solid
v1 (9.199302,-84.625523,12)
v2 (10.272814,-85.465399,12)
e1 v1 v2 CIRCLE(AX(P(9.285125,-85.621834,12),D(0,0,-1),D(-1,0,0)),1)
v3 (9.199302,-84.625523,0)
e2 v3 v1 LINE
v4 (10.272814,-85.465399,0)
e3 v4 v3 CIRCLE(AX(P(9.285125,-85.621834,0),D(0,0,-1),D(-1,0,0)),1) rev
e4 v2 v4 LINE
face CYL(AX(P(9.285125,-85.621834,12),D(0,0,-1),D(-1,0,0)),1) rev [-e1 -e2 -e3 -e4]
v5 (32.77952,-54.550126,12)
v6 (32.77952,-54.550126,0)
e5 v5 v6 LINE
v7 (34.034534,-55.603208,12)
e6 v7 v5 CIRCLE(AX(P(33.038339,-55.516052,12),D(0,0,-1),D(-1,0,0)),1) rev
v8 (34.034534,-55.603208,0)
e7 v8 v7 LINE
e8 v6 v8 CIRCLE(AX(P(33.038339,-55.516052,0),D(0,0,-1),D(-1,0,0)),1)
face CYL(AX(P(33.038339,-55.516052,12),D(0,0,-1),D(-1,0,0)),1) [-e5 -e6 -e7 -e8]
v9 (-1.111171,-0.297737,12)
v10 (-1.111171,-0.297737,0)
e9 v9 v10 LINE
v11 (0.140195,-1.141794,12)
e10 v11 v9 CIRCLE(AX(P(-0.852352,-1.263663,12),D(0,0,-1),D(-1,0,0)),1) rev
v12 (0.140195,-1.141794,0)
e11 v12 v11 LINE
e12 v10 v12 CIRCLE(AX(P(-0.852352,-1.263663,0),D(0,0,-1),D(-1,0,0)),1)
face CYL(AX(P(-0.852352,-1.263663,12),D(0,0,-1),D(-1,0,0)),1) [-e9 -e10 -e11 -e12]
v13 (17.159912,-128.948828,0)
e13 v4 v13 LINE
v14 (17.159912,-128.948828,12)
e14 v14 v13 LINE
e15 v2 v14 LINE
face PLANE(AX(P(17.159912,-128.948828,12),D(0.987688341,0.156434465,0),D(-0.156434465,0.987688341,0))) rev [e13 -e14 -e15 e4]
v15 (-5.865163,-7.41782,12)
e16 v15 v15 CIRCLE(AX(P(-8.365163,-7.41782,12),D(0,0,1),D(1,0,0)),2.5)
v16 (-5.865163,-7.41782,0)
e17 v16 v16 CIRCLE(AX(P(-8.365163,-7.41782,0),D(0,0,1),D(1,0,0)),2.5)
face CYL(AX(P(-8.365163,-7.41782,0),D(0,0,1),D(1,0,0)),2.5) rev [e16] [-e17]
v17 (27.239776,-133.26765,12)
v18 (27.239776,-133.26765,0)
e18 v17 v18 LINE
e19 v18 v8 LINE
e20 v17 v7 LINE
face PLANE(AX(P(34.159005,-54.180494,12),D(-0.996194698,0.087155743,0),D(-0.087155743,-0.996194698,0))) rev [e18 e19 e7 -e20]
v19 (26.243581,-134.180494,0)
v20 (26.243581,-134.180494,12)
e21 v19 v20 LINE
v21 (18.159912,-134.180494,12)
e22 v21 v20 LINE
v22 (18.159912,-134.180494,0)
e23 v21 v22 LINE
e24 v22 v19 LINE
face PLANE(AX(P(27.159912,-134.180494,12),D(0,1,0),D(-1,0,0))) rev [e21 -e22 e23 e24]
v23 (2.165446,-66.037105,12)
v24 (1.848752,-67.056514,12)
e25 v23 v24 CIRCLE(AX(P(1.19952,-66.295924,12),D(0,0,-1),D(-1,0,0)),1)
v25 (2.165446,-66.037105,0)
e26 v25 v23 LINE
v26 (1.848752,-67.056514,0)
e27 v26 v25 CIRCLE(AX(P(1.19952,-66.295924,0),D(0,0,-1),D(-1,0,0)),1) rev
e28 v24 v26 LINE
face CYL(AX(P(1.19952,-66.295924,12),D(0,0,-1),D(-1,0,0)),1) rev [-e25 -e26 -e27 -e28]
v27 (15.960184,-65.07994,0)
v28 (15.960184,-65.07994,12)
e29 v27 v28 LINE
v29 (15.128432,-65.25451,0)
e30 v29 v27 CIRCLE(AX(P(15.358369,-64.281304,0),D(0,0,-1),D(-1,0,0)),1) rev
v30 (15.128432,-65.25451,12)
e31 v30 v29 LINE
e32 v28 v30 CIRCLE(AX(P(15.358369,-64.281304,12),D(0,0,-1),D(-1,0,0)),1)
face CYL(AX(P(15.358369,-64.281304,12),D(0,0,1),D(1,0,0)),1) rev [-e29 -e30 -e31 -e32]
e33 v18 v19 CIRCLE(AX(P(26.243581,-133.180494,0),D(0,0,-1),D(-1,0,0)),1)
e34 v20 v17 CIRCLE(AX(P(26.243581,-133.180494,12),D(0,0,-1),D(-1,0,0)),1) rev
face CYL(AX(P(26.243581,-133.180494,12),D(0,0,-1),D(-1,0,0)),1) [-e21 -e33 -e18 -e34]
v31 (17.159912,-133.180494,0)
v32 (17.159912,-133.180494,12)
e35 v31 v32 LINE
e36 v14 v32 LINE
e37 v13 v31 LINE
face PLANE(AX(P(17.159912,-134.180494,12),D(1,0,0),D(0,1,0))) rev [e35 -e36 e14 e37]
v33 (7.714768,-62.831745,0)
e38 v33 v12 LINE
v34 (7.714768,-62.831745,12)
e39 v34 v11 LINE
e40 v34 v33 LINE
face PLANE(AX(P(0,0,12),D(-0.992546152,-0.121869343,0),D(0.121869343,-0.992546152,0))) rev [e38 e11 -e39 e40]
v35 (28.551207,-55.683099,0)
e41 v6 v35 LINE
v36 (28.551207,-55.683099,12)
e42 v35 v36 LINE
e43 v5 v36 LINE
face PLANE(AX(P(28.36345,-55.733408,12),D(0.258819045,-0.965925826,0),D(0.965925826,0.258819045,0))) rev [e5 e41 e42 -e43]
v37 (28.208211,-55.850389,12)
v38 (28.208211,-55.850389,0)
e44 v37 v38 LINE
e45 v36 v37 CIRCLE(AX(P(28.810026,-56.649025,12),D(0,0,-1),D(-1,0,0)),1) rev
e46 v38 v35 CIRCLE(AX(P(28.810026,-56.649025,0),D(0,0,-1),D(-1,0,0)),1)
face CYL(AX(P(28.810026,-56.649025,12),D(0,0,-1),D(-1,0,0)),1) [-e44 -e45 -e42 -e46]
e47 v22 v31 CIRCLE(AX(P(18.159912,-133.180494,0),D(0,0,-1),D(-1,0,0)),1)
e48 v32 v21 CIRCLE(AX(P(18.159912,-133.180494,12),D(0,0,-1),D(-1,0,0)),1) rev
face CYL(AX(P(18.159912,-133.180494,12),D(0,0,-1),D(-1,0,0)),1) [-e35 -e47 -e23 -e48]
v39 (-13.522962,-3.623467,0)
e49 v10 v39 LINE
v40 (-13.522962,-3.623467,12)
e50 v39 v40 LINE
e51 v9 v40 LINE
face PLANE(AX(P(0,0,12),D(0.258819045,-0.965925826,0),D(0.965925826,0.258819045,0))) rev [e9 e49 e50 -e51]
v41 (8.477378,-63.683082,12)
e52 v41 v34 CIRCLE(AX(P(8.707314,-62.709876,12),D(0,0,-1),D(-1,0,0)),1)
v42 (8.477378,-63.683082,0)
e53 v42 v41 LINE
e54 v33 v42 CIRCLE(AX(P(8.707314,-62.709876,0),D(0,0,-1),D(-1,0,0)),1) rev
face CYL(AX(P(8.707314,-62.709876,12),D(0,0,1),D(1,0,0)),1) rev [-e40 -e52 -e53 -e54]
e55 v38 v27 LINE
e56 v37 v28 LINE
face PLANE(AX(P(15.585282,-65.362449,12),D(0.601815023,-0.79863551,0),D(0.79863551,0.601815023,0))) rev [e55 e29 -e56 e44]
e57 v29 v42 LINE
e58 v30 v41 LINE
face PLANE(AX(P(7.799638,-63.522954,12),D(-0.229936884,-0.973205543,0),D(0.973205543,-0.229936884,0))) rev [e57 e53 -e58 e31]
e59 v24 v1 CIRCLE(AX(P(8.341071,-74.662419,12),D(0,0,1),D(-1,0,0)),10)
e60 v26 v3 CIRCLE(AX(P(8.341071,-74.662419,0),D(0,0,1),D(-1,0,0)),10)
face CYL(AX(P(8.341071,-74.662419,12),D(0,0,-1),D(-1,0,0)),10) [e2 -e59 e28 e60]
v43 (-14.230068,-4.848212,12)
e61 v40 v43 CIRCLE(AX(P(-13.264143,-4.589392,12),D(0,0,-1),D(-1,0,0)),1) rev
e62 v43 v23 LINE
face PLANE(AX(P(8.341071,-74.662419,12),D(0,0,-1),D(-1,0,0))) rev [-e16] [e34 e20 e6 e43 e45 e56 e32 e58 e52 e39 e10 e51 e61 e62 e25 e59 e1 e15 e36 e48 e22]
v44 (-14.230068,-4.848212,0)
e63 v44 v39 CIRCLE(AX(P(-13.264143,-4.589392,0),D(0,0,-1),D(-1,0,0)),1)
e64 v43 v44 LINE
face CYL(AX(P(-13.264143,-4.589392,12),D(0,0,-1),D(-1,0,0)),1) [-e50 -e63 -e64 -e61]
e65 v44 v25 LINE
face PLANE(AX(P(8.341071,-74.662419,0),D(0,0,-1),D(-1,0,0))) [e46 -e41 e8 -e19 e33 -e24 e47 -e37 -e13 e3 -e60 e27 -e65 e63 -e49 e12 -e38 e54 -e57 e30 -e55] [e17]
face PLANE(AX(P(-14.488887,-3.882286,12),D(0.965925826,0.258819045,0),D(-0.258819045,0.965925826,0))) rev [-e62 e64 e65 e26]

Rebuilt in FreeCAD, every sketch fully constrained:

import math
import FreeCAD as App
import Part
import Sketcher

V = App.Vector
Q = App.Units.Quantity


def edges_at(feature, points):
    """Names of the edges that pass closest to the given points."""
    edges = feature.Shape.Edges
    near = lambda p: min(range(len(edges)), key=lambda i: edges[i].distToShape(Part.Vertex(*p))[0])
    return sorted({f"Edge{near(p) + 1}" for p in points})

doc = App.newDocument("Part")
params = doc.addObject("Spreadsheet::Sheet", "Params")
for row, (alias, value) in enumerate([
    ("sketch1_radius", "10 mm"),
    ("sketch1_width", "10 mm"),
    ("sketch1_length", "15 mm"),
    ("sketch1_length2", "65 mm"),
    ("sketch1_length3", "45 mm"),
    ("pad1_length", "12 mm"),
    ("sketch2_diameter", "5 mm"),
    ("fillet_radius", "1 mm"),
], start=1):
    params.set(f"A{row}", alias)
    params.set(f"B{row}", "=" + value)
    params.setAlias(f"B{row}", alias)

body = doc.addObject("PartDesign::Body", "Body")

sketch1 = body.newObject("Sketcher::SketchObject", "Sketch")
sketch1.AttachmentSupport = (doc.getObject("XY_Plane"), [""])
sketch1.MapMode = "FlatFace"
sketch1.addGeometry([
    Part.LineSegment(V(0, 0, 0), V(-14.488887, -3.882286, 0)),
    Part.LineSegment(V(-14.488887, -3.882286, 0), V(2.334351, -66.667464, 0)),
    Part.ArcOfCircle(Part.Circle(V(8.341071, -74.662419, 0), V(0, 0, 1), 10), math.radians(126.918046), math.radians(280.249154)),
    Part.LineSegment(V(10.120361, -84.502853, 0), V(17.159912, -128.948828, 0)),
    Part.LineSegment(V(17.159912, -128.948828, 0), V(17.159912, -134.180494, 0)),
    Part.LineSegment(V(17.159912, -134.180494, 0), V(27.159912, -134.180494, 0)),
    Part.LineSegment(V(27.159912, -134.180494, 0), V(34.159005, -54.180494, 0)),
    Part.LineSegment(V(34.159005, -54.180494, 0), V(28.36345, -55.733408, 0)),
    Part.LineSegment(V(28.36345, -55.733408, 0), V(15.585282, -65.362449, 0)),
    Part.LineSegment(V(15.585282, -65.362449, 0), V(7.799638, -63.522954, 0)),
    Part.LineSegment(V(7.799638, -63.522954, 0), V(0, 0, 0)),
], False)
sketch1.addConstraint([
    Sketcher.Constraint("Coincident", 0, 2, 1, 1),
    Sketcher.Constraint("Coincident", 1, 2, 2, 1),
    Sketcher.Constraint("Coincident", 2, 2, 3, 1),
    Sketcher.Constraint("Coincident", 3, 2, 4, 1),
    Sketcher.Constraint("Coincident", 4, 2, 5, 1),
    Sketcher.Constraint("Coincident", 5, 2, 6, 1),
    Sketcher.Constraint("Coincident", 6, 2, 7, 1),
    Sketcher.Constraint("Coincident", 7, 2, 8, 1),
    Sketcher.Constraint("Coincident", 8, 2, 9, 1),
    Sketcher.Constraint("Coincident", 9, 2, 10, 1),
    Sketcher.Constraint("Coincident", 10, 2, 0, 1),
    Sketcher.Constraint("Vertical", 4),
    Sketcher.Constraint("Horizontal", 5),
    Sketcher.Constraint("Coincident", 10, 2, -1, 1),
    Sketcher.Constraint("Perpendicular", 0, 1),
    Sketcher.Constraint("Perpendicular", 1, 7),
    Sketcher.Constraint("Radius", 2, 10.0),
    Sketcher.Constraint("DistanceX", 5, 1, 5, 2, 10.0),
    Sketcher.Constraint("Angle", 0, Q("-165 deg")),
    Sketcher.Constraint("Angle", 3, Q("-81 deg")),
    Sketcher.Constraint("Angle", 6, Q("85 deg")),
    Sketcher.Constraint("Angle", 8, Q("-143 deg")),
    Sketcher.Constraint("Angle", 10, Q("97 deg")),
    Sketcher.Constraint("Distance", 0, 15.0),
    Sketcher.Constraint("Distance", 1, 65.0),
    Sketcher.Constraint("Distance", 3, 45.0),
    Sketcher.Constraint("Distance", 7, 6.0),
    Sketcher.Constraint("Distance", 8, 16.0),
    Sketcher.Constraint("Distance", 9, 8.0),
    Sketcher.Constraint("Distance", 10, 64.0),
    Sketcher.Constraint("DistanceX", 0, 2, 3, 2, 31.6488),
    Sketcher.Constraint("DistanceX", 1, 2, 7, 2, 26.0291),
    Sketcher.Constraint("DistanceY", 2, 2, 9, 2, 20.979899),
])
sketch1.setExpression("Constraints[16]", "Params.sketch1_radius")
sketch1.setExpression("Constraints[17]", "Params.sketch1_width")
sketch1.setExpression("Constraints[23]", "Params.sketch1_length")
sketch1.setExpression("Constraints[24]", "Params.sketch1_length2")
sketch1.setExpression("Constraints[25]", "Params.sketch1_length3")
pad1 = body.newObject("PartDesign::Pad", "Pad")
pad1.Profile = sketch1
pad1.setExpression("Length", "Params.pad1_length")

sketch2 = body.newObject("Sketcher::SketchObject", "Sketch001")
sketch2.AttachmentSupport = (doc.getObject("XY_Plane"), [""])
sketch2.MapMode = "FlatFace"
sketch2.AttachmentOffset = App.Placement(V(0, 0, 12), App.Rotation())
sketch2.addGeometry(Part.Circle(V(-8.365163, -7.41782, 0), V(0, 0, 1), 2.5), False)
sketch2.addConstraint([
    Sketcher.Constraint("Diameter", 0, 5.0),
    Sketcher.Constraint("DistanceY", 0, 3, -1, 1, 7.41782),
    Sketcher.Constraint("DistanceX", 0, 3, -1, 1, 8.365163),
])
sketch2.setExpression("Constraints[0]", "Params.sketch2_diameter")
pocket1 = body.newObject("PartDesign::Pocket", "Pocket")
pocket1.Profile = sketch2
pocket1.Type = "ThroughAll"
doc.recompute()

fillet = body.newObject("PartDesign::Fillet", "Fillet")
fillet.Base = (pocket1, edges_at(pocket1, [
    (7.8, -63.523, 6),
    (15.585, -65.362, 6),
    (28.363, -55.733, 6),
    (34.159, -54.18, 6),
    (27.16, -134.18, 6),
    (17.16, -134.18, 6),
    (10.12, -84.503, 6),
    (2.334, -66.667, 6),
    (-14.489, -3.882, 6),
    (0, 0, 6),
]))
fillet.setExpression("Radius", "Params.fillet_radius")

doc.recompute()
